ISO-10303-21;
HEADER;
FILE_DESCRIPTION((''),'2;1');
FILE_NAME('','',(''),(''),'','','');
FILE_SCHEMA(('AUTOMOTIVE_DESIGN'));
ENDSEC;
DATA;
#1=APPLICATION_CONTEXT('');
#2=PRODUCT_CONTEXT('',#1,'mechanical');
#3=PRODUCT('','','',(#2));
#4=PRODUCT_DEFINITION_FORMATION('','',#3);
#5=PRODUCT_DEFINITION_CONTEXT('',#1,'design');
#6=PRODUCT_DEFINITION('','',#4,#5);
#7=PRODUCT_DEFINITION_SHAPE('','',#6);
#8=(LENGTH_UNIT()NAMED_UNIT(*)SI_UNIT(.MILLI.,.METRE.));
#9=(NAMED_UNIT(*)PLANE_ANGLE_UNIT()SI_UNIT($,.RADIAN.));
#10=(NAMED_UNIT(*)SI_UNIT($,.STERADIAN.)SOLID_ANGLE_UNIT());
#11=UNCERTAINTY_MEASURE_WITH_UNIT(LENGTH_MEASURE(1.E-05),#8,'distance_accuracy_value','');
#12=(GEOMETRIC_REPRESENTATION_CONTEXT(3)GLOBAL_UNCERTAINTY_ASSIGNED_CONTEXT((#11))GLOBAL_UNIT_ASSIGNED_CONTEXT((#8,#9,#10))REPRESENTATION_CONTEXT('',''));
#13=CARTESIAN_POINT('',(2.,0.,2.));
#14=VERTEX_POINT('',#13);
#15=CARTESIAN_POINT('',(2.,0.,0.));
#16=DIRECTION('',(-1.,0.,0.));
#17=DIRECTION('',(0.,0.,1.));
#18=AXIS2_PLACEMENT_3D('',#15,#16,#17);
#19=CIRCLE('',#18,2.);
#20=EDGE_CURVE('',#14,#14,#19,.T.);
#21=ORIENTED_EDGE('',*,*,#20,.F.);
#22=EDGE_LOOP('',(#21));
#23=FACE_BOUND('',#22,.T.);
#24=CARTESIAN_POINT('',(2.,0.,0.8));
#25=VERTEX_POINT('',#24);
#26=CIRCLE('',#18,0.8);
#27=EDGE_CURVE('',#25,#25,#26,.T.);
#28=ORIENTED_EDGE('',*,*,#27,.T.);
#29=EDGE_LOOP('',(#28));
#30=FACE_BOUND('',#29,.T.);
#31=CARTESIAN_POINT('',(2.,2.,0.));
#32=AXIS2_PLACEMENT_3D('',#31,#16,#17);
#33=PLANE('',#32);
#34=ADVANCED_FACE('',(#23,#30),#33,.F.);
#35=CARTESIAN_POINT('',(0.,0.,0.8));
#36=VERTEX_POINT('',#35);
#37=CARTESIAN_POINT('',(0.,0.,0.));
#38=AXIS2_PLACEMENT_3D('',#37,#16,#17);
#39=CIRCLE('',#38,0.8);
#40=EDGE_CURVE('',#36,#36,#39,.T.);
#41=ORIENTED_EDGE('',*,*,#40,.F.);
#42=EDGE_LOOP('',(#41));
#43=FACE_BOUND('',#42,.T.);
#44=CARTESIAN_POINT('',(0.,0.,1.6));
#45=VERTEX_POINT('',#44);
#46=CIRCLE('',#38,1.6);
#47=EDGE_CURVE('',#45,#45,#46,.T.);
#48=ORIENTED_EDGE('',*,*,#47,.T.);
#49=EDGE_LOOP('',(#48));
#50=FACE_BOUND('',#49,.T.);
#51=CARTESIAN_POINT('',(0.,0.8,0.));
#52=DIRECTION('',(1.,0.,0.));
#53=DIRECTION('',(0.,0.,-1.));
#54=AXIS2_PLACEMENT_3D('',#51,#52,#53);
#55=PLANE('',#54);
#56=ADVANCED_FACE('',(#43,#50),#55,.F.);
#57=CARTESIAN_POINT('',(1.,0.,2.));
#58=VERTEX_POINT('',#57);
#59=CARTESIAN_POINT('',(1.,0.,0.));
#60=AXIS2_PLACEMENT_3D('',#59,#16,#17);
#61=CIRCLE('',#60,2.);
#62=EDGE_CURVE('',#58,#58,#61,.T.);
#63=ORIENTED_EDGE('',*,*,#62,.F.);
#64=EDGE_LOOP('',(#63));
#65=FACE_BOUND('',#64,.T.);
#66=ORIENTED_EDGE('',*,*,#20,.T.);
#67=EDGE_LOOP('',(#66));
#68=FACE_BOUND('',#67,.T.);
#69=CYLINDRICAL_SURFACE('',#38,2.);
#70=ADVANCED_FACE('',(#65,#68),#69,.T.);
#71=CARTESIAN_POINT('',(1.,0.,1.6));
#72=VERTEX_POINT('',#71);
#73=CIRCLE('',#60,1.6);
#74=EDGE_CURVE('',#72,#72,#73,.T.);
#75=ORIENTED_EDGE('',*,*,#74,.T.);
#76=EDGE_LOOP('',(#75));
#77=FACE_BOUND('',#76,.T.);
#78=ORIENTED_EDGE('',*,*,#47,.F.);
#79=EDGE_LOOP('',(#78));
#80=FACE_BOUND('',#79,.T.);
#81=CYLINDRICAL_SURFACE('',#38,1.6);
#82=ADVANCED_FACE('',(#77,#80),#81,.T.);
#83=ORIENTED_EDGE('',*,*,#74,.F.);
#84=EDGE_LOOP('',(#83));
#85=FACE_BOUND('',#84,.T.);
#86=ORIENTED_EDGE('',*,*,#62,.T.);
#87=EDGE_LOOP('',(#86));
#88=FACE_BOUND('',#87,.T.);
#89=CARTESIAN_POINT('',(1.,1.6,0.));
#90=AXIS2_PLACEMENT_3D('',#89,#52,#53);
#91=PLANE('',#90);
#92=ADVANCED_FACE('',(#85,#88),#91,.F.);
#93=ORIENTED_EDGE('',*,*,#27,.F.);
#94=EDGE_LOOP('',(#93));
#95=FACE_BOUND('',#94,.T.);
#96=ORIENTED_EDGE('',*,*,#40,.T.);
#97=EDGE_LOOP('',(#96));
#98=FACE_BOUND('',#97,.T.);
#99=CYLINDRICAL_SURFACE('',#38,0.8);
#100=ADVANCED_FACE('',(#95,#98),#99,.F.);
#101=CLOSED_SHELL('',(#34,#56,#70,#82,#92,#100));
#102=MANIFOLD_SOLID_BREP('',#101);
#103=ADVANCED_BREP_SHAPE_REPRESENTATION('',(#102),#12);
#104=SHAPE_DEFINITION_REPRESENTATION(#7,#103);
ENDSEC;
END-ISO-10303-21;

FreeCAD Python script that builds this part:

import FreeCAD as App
import Part
import Sketcher
from FreeCAD import Vector


def add_polygon(sketch, points):
    """Adds a closed chain of lines whose ends are joined by coincident constraints."""
    first, n = sketch.GeometryCount, len(points)
    for a, b in zip(points, points[1:] + points[:1]):
        sketch.addGeometry(Part.LineSegment(App.Vector(*a, 0), App.Vector(*b, 0)), False)
    for i in range(n):
        sketch.addConstraint(Sketcher.Constraint("Coincident", first + i, 2, first + (i + 1) % n, 1))

doc = App.newDocument("Part")
body = doc.addObject("PartDesign::Body", "Body")

sketch1 = body.newObject("Sketcher::SketchObject", "Sketch")
sketch1.AttachmentSupport = (doc.getObject("XY_Plane"), [""])
sketch1.MapMode = "FlatFace"
add_polygon(sketch1, [(0, 1.6), (0, 0.8), (2, 0.8), (2, 2), (1, 2), (1, 1.6)])
sketch1.addConstraint([
    Sketcher.Constraint("Vertical", 0),
    Sketcher.Constraint("Horizontal", 1),
    Sketcher.Constraint("Vertical", 2),
    Sketcher.Constraint("Horizontal", 3),
    Sketcher.Constraint("Vertical", 4),
    Sketcher.Constraint("Horizontal", 5),
    Sketcher.Constraint("PointOnObject", 0, 2, -2),
    Sketcher.Constraint("Equal", 3, 5),
    Sketcher.Constraint("DistanceX", 1, 1, 1, 2, 2.0),
    Sketcher.Constraint("DistanceY", 0, 2, 0, 1, 0.8),
    Sketcher.Constraint("DistanceY", 2, 1, 2, 2, 1.2),
    Sketcher.Constraint("DistanceY", -1, 1, 2, 2, 2.0),
])
revolution = body.newObject("PartDesign::Revolution", "Revolution")
revolution.Profile = sketch1
revolution.ReferenceAxis = (sketch1, ["H_Axis"])
revolution.Angle = 360

doc.recompute()
